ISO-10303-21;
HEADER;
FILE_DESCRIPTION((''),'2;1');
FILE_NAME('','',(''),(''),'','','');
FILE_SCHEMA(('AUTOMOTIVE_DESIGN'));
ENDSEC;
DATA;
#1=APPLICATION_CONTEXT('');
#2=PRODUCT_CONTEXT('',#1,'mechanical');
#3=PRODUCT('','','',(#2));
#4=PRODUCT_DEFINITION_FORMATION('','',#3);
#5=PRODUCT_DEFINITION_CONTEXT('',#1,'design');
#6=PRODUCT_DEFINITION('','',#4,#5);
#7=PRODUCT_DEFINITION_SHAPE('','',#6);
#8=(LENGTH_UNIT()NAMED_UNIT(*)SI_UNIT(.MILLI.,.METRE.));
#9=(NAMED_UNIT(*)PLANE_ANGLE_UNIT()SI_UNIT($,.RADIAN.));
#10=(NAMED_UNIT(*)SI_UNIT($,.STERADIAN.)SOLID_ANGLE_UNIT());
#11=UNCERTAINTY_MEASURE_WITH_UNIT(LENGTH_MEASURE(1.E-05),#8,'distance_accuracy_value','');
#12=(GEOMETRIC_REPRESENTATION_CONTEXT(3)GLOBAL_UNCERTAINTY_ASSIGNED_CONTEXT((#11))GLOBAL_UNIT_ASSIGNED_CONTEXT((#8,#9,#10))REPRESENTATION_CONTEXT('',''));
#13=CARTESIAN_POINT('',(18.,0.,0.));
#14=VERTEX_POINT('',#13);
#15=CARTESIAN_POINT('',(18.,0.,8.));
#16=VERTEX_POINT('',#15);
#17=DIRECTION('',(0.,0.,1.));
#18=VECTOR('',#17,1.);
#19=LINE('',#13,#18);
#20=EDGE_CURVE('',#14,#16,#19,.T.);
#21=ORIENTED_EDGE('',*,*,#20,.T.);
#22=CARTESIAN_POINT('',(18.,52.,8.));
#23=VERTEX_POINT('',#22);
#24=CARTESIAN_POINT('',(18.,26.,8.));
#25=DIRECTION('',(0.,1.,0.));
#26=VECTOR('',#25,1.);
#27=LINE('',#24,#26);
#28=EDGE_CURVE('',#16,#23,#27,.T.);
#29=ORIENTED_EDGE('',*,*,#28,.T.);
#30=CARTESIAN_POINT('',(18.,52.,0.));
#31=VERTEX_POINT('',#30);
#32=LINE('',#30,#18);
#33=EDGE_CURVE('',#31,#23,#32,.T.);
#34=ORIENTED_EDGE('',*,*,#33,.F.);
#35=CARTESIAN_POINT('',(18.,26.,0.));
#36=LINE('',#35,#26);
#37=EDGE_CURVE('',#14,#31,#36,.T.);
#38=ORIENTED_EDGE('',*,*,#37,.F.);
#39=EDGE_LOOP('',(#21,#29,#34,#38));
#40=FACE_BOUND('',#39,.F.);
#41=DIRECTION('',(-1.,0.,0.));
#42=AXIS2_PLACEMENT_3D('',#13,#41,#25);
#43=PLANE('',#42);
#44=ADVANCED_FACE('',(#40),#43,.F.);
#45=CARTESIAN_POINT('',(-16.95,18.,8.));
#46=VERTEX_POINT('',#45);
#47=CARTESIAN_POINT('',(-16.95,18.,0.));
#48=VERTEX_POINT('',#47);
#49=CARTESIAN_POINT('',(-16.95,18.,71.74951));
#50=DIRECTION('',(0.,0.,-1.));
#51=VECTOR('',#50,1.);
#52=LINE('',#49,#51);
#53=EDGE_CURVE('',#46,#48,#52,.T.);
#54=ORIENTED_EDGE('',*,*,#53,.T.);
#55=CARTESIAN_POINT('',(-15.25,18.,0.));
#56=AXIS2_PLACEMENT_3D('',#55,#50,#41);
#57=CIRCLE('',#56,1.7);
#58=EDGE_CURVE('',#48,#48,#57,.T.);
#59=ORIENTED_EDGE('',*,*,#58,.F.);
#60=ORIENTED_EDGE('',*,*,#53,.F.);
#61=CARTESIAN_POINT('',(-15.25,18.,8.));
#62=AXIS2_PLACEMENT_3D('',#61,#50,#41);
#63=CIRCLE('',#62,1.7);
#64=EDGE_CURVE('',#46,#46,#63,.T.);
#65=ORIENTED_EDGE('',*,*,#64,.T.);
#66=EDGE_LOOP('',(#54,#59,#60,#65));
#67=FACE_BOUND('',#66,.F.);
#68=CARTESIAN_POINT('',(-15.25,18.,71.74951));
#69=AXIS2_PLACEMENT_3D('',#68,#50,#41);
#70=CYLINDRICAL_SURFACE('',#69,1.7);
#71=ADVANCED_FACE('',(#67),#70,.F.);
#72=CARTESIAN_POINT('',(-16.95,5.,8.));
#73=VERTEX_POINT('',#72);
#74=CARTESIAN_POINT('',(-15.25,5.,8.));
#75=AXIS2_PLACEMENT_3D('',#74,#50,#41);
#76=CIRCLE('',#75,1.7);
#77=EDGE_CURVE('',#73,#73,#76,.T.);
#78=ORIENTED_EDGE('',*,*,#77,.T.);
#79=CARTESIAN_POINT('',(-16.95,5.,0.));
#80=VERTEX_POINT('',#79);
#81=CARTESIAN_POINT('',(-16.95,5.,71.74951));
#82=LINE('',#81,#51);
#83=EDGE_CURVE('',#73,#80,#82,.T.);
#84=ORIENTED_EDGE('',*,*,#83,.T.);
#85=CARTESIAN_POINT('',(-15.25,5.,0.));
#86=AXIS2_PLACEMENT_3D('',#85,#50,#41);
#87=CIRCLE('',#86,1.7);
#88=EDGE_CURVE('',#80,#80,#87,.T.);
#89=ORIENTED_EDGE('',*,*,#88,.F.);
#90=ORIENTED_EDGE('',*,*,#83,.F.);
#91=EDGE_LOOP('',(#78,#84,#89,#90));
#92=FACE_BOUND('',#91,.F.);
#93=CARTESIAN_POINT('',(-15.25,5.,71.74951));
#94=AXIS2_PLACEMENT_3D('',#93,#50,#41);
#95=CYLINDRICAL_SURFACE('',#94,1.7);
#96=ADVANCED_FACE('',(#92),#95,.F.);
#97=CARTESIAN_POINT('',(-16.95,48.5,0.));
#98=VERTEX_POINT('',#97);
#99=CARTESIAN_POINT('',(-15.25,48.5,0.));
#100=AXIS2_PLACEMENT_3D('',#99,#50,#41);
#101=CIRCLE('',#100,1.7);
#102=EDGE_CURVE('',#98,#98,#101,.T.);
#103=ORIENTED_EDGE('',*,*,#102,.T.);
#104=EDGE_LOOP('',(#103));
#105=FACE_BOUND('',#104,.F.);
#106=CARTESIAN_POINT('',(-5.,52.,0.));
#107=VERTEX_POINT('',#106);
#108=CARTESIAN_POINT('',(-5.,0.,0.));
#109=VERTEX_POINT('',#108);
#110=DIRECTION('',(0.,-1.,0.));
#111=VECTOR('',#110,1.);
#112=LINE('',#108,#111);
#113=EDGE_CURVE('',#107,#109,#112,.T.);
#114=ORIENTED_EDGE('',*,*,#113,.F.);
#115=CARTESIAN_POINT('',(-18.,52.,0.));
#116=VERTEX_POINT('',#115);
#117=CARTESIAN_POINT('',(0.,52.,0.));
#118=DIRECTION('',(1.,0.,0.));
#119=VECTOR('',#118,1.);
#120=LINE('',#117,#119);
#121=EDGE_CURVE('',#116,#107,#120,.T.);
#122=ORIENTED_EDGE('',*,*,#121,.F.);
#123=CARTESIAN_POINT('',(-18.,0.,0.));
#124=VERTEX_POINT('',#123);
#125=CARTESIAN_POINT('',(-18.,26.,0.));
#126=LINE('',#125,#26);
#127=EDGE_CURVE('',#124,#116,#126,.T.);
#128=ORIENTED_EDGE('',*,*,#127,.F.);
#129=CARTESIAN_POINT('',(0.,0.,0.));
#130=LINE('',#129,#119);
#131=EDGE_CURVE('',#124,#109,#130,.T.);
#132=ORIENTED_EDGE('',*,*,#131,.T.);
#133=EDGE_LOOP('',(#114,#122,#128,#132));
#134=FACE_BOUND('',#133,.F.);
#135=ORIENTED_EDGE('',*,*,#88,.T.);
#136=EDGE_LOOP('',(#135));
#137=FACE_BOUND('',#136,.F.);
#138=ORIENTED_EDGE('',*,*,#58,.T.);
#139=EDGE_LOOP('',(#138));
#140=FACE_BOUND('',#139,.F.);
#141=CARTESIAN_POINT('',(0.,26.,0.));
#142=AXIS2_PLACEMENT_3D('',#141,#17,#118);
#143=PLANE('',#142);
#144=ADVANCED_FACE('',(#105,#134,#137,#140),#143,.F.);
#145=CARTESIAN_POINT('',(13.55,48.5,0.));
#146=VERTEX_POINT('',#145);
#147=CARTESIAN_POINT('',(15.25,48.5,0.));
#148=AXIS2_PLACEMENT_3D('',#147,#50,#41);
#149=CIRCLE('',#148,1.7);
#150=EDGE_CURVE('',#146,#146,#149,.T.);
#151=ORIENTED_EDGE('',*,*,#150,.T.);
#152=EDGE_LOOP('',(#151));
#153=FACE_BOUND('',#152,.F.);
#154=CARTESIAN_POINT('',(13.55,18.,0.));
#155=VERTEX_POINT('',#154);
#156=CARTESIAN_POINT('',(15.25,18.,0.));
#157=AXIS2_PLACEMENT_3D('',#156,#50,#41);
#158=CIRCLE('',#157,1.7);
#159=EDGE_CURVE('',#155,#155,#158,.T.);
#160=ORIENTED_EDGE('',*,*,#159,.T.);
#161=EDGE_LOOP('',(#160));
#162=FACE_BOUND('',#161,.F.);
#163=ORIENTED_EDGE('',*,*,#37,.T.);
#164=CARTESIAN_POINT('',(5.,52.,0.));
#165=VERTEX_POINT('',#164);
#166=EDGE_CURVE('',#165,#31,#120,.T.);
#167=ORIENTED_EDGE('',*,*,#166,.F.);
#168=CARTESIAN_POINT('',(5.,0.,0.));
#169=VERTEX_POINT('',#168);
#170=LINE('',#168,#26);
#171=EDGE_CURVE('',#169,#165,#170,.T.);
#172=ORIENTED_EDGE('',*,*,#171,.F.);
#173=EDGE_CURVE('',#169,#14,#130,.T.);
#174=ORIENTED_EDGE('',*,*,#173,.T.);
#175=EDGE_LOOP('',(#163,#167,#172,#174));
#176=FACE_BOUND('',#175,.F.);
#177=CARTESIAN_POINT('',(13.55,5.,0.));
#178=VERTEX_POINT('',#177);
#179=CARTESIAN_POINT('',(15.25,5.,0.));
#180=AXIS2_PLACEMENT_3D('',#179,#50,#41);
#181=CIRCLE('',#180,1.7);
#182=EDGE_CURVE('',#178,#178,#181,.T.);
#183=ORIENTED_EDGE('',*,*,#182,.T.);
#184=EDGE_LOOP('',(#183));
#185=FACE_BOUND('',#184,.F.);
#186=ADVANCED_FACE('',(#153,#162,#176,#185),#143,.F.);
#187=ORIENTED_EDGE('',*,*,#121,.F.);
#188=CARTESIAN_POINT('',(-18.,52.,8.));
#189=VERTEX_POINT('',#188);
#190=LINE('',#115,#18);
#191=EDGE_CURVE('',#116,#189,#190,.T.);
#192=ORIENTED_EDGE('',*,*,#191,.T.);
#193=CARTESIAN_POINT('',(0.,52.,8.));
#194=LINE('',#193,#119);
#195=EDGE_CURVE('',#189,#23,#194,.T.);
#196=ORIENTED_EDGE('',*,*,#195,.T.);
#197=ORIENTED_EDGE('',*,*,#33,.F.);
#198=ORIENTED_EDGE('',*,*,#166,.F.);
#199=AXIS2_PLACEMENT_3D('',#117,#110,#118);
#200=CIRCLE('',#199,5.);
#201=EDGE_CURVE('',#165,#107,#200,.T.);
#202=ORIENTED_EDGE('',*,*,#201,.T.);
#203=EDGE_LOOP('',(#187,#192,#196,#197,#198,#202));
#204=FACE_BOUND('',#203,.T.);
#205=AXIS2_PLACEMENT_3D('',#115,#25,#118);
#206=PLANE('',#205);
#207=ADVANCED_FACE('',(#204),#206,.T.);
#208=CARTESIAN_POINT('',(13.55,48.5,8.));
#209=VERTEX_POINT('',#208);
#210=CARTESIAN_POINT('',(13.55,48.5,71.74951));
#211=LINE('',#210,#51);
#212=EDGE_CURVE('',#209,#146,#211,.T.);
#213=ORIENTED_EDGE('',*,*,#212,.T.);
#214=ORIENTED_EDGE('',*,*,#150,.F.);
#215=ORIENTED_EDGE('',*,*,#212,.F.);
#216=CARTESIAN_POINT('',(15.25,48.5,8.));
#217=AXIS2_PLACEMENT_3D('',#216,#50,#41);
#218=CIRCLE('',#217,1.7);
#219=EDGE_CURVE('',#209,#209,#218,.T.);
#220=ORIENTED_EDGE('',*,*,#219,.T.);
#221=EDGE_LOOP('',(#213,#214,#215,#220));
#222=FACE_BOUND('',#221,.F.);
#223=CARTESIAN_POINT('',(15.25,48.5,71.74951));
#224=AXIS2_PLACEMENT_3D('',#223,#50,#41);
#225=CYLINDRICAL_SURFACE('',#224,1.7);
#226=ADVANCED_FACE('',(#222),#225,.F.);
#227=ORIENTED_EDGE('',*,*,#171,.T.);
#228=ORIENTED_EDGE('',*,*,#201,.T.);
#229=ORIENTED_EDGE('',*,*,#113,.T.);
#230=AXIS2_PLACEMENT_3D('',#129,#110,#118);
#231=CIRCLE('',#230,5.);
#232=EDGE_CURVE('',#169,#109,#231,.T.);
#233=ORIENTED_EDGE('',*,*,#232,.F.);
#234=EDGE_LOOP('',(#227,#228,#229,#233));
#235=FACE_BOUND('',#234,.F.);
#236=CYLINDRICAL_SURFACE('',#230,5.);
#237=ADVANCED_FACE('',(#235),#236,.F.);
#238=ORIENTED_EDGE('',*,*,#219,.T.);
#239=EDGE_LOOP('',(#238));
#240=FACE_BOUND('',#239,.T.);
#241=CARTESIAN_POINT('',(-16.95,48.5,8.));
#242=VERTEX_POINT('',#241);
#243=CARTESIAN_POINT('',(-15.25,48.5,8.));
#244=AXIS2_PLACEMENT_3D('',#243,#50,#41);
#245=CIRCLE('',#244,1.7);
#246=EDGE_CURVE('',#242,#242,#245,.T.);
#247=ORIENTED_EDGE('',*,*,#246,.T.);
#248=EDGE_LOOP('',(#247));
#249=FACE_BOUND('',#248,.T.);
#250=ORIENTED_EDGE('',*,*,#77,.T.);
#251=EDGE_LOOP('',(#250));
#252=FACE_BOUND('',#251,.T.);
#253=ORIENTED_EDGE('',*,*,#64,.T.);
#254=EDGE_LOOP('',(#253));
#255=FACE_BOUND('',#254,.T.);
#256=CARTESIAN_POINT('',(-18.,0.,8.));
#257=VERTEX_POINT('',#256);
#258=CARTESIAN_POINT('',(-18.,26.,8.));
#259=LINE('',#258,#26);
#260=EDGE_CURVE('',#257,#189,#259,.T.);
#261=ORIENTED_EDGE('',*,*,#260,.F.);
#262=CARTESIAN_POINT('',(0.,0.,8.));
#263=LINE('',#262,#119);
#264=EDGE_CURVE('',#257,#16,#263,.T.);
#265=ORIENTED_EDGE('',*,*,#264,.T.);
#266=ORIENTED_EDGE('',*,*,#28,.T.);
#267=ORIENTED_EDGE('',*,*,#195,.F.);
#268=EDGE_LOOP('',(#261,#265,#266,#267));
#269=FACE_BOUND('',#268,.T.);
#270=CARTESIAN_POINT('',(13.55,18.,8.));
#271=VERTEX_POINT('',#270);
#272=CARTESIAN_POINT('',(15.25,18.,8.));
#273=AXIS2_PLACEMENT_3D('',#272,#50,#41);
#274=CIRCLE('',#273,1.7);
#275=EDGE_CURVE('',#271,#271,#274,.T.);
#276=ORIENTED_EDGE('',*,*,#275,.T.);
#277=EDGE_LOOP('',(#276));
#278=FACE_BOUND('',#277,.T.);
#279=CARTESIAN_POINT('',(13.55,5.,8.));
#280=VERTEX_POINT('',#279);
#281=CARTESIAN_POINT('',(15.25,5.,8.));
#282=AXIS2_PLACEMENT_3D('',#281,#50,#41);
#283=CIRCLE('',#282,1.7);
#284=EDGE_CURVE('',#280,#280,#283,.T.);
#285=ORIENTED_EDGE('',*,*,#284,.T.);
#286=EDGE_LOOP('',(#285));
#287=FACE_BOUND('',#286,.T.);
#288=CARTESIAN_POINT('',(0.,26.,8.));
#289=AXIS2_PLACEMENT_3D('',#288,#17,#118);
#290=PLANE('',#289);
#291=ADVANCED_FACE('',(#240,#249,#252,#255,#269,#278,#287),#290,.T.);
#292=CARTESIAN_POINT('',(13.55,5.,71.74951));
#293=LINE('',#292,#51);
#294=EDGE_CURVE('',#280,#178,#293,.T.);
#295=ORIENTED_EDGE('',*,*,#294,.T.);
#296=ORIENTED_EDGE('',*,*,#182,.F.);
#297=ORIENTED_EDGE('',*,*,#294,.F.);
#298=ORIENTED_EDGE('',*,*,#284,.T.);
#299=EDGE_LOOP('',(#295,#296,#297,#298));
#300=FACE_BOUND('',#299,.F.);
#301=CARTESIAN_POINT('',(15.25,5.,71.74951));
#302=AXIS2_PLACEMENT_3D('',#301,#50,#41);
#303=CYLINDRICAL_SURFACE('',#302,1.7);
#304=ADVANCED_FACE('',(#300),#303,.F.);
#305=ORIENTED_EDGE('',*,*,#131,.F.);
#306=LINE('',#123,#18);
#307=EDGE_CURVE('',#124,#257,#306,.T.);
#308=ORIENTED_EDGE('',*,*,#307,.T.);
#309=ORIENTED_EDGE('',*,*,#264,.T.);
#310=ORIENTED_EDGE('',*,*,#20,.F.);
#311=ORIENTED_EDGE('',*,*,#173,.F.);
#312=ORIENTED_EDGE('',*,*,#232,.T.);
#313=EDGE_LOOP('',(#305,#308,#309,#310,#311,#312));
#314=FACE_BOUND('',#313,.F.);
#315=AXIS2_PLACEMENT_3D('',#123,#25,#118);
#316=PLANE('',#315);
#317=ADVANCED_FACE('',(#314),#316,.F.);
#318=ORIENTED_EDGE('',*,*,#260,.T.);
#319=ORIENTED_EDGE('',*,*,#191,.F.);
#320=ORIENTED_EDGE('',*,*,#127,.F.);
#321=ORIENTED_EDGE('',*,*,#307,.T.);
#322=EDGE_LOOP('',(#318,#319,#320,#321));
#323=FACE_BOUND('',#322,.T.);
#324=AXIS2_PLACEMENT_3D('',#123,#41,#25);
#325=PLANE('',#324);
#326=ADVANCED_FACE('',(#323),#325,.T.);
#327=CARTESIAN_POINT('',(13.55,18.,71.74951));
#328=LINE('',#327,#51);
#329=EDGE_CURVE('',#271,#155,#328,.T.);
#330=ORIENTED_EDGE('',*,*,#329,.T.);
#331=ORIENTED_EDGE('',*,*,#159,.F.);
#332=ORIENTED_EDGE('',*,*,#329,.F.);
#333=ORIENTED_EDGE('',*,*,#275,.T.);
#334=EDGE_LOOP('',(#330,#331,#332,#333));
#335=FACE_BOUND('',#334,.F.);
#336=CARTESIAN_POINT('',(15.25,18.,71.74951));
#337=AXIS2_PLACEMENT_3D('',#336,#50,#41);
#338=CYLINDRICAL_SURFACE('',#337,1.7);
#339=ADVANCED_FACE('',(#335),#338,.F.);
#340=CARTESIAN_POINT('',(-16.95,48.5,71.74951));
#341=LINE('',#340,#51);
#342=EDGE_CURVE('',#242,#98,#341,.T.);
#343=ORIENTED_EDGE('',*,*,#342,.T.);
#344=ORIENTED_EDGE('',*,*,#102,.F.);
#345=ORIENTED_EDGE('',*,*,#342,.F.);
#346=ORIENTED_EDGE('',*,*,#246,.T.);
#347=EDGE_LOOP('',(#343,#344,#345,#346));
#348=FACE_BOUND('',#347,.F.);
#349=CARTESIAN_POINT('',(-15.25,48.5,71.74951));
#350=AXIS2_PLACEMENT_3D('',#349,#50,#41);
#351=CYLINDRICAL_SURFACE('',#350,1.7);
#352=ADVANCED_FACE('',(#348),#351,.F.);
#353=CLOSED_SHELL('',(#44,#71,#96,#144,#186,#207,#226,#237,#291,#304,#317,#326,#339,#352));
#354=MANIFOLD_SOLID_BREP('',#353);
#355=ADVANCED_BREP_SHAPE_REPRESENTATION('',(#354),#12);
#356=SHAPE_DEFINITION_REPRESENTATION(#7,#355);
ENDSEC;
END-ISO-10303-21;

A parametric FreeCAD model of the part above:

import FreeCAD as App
import Part
import Sketcher
from FreeCAD import Vector

doc = App.newDocument("Part")
body = doc.addObject("PartDesign::Body", "Body")

# Sketch on XY plane
sketch1 = body.newObject("Sketcher::SketchObject", "Sketch")
sketch1.AttachmentSupport = (doc.getObject("XY_Plane"), [""])
sketch1.MapMode = "FlatFace"
sketch1.addGeometry([
    Part.LineSegment(Vector(-18, 52, 0), Vector(-18, 0, 0)),
    Part.LineSegment(Vector(-18, 0, 0), Vector(18, 0, 0)),
    Part.LineSegment(Vector(18, 0, 0), Vector(18, 52, 0)),
    Part.LineSegment(Vector(18, 52, 0), Vector(-18, 52, 0)),
], False)
sketch1.addConstraint([
    Sketcher.Constraint("Coincident", 0, 2, 1, 1),
    Sketcher.Constraint("Coincident", 1, 2, 2, 1),
    Sketcher.Constraint("Coincident", 2, 2, 3, 1),
    Sketcher.Constraint("Coincident", 3, 2, 0, 1),
    Sketcher.Constraint("Vertical", 0),
    Sketcher.Constraint("Horizontal", 1),
    Sketcher.Constraint("Vertical", 2),
    Sketcher.Constraint("Horizontal", 3),
    Sketcher.Constraint("Symmetric", 0, 2, 1, 2, -1, 1),
    Sketcher.Constraint("DistanceX", 1, 1, 1, 2, 36.0),
    Sketcher.Constraint("DistanceY", 0, 2, 0, 1, 52.0),
])
pad1 = body.newObject("PartDesign::Pad", "Pad")
pad1.Profile = sketch1
pad1.Length = 8

# Sketch on XY plane
sketch2 = body.newObject("Sketcher::SketchObject", "Sketch001")
sketch2.AttachmentSupport = (doc.getObject("XY_Plane"), [""])
sketch2.MapMode = "FlatFace"
sketch2.AttachmentOffset = App.Placement(Vector(0, 0, 8), App.Rotation())
sketch2.addGeometry([
    Part.Circle(Vector(15.2, 48.5, 0), Vector(0, 0, 1), 1.7),  # 0
    Part.Circle(Vector(15.2, 5, 0), Vector(0, 0, 1), 1.7),  # 1
    Part.Circle(Vector(-15.2, 18, 0), Vector(0, 0, 1), 1.7),  # 2
    Part.Circle(Vector(-15.2, 48.5, 0), Vector(0, 0, 1), 1.7),  # 3
    Part.Circle(Vector(15.2, 18, 0), Vector(0, 0, 1), 1.7),  # 4
    Part.Circle(Vector(-15.2, 5, 0), Vector(0, 0, 1), 1.7),  # 5
], False)
sketch2.addConstraint([
    Sketcher.Constraint("Equal", 0, 1),
    Sketcher.Constraint("Equal", 1, 2),
    Sketcher.Constraint("Equal", 2, 3),
    Sketcher.Constraint("Equal", 3, 4),
    Sketcher.Constraint("Equal", 4, 5),
    Sketcher.Constraint("Symmetric", 0, 3, 3, 3, -2),
    Sketcher.Constraint("Symmetric", 2, 3, 4, 3, -2),
    Sketcher.Constraint("Symmetric", 1, 3, 5, 3, -2),
    Sketcher.Constraint("Vertical", 0, 3, 1, 3),
    Sketcher.Constraint("Vertical", 2, 3, 3, 3),
    Sketcher.Constraint("Diameter", 0, 3.4),
    Sketcher.Constraint("DistanceY", -1, 1, 1, 3, 5.0),
    Sketcher.Constraint("DistanceY", -1, 1, 2, 3, 18.0),
    Sketcher.Constraint("DistanceY", -1, 1, 0, 3, 48.5),
    Sketcher.Constraint("DistanceX", 2, 3, 1, 3, 30.5),
])
doc.recompute()
hole = body.newObject("PartDesign::Hole", "Hole")
hole.Profile = sketch2
hole.ThreadType = "None"
hole.Diameter = 3.4
hole.DepthType = "ThroughAll"

# Sketch on XZ plane
sketch3 = body.newObject("Sketcher::SketchObject", "Sketch002")
sketch3.AttachmentSupport = (doc.getObject("XZ_Plane"), [""])
sketch3.MapMode = "FlatFace"
sketch3.addGeometry(Part.Circle(Vector(0, 0, 0), Vector(0, 0, 1), 5), False)
sketch3.addConstraint([
    Sketcher.Constraint("Coincident", 0, 3, -1, 1),
    Sketcher.Constraint("Diameter", 0, 10.0),
])
pocket1 = body.newObject("PartDesign::Pocket", "Pocket")
pocket1.Profile = sketch3
pocket1.Type = "ThroughAll"

doc.recompute()
